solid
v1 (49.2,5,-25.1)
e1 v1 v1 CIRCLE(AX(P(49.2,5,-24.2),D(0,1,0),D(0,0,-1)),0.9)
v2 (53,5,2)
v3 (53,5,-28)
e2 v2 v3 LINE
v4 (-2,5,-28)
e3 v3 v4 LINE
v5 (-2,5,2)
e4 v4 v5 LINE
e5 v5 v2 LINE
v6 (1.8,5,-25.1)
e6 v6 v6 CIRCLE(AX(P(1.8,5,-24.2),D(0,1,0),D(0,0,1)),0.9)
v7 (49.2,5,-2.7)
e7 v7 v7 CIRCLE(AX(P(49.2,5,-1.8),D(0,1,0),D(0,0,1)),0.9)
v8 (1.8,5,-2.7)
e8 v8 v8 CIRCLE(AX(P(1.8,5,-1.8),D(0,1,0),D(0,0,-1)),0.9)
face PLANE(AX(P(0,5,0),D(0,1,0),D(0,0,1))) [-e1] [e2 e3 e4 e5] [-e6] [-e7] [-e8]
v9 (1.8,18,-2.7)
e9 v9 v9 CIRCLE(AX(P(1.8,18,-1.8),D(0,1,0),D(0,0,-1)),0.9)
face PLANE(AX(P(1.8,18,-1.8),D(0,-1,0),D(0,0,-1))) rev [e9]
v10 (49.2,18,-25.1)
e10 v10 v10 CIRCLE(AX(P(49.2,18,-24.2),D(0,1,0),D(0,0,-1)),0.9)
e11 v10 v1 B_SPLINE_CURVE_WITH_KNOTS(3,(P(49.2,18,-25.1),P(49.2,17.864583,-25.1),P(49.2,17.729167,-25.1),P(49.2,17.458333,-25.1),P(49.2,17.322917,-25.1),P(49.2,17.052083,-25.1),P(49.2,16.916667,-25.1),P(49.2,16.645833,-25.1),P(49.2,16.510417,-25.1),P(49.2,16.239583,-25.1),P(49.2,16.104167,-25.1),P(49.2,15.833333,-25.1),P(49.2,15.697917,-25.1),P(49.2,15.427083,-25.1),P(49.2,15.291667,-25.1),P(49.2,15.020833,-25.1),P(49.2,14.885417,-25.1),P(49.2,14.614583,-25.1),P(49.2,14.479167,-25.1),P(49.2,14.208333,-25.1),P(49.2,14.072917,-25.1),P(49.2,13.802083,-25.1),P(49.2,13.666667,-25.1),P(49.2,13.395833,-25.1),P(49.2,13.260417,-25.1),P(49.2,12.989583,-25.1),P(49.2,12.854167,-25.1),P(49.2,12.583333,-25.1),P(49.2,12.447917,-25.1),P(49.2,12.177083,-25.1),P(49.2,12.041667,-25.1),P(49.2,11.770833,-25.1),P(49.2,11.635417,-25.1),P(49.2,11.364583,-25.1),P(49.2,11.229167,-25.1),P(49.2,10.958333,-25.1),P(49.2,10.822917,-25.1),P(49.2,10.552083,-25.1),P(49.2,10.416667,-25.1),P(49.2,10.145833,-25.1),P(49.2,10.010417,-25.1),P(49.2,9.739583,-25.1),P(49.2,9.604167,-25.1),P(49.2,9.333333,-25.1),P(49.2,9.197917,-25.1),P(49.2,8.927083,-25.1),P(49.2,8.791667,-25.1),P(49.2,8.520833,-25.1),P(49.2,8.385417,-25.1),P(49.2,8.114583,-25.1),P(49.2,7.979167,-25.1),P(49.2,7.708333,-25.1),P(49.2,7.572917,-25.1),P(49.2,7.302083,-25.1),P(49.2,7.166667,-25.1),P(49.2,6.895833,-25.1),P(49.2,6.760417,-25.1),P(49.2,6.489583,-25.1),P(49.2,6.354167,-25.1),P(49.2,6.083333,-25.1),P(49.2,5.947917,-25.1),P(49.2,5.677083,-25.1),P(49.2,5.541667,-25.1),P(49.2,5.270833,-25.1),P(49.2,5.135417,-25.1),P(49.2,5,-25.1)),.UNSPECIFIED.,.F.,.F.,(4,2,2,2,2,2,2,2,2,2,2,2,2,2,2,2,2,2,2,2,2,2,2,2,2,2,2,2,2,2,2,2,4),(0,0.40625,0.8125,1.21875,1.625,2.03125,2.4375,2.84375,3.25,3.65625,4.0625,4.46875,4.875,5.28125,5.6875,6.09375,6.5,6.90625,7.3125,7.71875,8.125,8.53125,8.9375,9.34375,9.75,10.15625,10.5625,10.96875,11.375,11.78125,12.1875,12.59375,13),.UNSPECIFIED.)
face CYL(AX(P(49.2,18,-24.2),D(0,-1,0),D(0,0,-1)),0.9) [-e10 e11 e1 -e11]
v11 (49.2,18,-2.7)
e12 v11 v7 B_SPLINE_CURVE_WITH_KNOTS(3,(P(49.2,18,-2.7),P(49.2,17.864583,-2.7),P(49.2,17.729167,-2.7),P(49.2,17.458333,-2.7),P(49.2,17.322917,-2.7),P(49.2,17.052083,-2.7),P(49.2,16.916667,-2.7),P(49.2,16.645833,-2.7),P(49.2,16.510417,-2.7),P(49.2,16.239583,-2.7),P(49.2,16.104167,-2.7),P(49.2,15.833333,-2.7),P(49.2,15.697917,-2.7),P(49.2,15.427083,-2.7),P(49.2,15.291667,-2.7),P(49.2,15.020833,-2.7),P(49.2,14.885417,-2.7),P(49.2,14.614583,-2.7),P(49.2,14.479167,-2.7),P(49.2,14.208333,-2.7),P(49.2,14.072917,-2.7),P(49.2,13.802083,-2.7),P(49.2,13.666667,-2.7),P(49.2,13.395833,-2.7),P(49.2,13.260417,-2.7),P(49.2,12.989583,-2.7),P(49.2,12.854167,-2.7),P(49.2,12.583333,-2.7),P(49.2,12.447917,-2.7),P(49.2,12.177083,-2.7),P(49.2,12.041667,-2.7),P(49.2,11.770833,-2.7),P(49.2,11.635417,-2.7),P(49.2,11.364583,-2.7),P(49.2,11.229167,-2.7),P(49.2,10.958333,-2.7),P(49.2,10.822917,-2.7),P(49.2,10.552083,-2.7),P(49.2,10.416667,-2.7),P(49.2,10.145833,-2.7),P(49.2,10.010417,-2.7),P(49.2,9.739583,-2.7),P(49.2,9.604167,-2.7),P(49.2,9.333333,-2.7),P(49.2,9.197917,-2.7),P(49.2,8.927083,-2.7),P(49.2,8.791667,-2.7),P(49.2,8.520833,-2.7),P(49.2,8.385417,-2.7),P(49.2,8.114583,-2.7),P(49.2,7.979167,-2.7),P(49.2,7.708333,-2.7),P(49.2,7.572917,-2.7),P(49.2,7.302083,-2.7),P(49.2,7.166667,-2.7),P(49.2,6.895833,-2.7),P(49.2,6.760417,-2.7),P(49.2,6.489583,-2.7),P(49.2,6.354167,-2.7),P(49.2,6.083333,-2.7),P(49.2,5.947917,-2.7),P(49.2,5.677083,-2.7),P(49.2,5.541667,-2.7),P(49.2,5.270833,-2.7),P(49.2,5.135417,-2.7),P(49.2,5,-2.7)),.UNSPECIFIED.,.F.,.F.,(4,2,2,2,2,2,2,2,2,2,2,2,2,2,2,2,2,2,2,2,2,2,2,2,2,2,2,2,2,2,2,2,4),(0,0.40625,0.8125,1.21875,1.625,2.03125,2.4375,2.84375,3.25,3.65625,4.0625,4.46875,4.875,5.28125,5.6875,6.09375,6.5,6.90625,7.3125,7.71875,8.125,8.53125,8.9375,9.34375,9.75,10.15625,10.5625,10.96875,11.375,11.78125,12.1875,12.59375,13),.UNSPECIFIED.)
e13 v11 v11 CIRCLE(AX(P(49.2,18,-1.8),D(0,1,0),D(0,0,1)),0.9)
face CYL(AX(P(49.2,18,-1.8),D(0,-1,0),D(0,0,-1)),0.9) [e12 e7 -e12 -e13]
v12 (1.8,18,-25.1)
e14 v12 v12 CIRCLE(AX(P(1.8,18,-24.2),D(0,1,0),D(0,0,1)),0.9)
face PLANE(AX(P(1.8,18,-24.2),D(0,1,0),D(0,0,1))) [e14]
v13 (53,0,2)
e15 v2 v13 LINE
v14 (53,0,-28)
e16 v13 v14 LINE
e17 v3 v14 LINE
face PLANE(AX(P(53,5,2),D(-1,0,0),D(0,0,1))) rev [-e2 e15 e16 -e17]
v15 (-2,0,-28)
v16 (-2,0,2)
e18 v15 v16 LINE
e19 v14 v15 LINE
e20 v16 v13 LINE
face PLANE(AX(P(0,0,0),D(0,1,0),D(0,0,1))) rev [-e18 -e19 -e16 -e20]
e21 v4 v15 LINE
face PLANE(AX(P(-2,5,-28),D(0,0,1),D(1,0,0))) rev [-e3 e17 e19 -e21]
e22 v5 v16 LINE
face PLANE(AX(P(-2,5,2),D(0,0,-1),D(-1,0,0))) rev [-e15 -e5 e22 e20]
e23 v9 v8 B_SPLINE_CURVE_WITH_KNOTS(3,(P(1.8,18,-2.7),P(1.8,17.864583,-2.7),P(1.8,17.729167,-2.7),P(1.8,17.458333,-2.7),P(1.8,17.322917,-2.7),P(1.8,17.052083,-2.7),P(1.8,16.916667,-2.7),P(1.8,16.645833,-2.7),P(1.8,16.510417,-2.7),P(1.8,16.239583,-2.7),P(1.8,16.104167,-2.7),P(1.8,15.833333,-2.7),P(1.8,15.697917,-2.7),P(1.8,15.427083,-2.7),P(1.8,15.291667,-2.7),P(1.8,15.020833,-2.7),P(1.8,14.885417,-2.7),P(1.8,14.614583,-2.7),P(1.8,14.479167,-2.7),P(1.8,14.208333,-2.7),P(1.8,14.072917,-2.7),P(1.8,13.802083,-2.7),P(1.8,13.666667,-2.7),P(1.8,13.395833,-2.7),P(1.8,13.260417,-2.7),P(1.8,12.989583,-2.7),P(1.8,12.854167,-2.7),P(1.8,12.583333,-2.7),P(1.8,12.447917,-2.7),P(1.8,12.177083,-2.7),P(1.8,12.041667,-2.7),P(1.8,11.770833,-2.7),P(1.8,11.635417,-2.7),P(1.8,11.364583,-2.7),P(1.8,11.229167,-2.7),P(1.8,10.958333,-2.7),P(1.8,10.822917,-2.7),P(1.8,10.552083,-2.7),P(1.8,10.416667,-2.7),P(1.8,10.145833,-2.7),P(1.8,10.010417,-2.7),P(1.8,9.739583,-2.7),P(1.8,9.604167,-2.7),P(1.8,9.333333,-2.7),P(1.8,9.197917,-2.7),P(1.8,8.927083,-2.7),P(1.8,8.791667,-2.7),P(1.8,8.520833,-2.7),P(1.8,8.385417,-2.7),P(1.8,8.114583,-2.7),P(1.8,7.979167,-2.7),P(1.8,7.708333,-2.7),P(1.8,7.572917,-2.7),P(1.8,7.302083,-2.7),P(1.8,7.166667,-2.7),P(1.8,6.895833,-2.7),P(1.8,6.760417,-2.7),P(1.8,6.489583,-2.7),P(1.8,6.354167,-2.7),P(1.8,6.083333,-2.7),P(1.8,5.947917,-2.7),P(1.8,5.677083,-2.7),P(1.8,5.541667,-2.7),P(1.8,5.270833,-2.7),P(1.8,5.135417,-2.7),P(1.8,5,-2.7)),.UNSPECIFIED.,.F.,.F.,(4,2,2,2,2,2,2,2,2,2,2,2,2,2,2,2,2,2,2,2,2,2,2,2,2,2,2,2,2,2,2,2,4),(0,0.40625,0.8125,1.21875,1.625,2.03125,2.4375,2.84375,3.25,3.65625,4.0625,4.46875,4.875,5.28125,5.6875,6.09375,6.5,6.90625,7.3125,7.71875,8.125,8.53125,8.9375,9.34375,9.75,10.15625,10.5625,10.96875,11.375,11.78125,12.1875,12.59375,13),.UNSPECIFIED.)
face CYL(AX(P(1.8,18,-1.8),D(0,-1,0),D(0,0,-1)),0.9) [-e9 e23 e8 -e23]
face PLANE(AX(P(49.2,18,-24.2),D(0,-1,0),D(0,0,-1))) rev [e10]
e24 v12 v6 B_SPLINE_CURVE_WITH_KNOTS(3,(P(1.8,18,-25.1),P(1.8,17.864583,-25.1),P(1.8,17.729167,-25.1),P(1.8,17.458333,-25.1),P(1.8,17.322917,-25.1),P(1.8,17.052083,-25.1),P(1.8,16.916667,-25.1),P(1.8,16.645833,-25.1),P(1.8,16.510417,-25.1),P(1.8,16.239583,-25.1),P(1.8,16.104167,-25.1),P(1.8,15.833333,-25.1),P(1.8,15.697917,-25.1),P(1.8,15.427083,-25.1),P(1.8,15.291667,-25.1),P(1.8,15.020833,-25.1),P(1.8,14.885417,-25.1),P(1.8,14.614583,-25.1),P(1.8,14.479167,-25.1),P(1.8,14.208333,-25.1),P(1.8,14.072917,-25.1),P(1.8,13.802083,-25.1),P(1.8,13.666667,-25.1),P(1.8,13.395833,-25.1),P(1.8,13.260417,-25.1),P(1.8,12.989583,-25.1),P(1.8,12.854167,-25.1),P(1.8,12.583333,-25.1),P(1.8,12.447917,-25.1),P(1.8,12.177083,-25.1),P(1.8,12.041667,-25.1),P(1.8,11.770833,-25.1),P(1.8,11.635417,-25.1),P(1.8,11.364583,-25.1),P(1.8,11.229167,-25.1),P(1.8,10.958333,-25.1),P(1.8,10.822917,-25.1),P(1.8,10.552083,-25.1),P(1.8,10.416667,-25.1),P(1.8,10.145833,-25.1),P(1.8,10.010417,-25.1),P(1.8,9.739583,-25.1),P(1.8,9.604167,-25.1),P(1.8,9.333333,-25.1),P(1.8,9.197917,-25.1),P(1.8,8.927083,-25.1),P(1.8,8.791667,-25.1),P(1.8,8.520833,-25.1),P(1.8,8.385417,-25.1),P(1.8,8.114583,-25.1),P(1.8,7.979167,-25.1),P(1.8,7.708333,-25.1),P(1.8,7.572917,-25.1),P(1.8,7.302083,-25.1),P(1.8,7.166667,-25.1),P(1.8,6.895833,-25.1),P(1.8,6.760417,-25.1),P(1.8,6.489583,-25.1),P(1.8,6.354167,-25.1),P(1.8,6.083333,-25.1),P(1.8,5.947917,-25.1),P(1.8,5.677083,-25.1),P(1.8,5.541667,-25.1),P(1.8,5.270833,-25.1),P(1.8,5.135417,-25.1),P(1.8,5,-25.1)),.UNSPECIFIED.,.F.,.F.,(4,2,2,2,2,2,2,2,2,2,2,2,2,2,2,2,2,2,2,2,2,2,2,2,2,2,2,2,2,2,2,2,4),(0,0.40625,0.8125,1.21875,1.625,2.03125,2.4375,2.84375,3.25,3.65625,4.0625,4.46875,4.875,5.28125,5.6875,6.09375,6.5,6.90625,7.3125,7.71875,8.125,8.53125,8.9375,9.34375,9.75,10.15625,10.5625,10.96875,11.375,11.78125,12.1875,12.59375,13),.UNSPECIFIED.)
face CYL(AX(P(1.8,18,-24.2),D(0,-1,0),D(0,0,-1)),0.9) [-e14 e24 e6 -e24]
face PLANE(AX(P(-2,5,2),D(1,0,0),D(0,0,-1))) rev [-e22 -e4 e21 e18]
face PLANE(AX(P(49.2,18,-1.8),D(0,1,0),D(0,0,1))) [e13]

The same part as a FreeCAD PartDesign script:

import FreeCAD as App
import Part
import Sketcher

V = App.Vector


def add_polygon(sketch, points):
    """Adds a closed chain of lines whose ends are joined by coincident constraints."""
    first, n = sketch.GeometryCount, len(points)
    for a, b in zip(points, points[1:] + points[:1]):
        sketch.addGeometry(Part.LineSegment(App.Vector(*a, 0), App.Vector(*b, 0)), False)
    for i in range(n):
        sketch.addConstraint(Sketcher.Constraint("Coincident", first + i, 2, first + (i + 1) % n, 1))

doc = App.newDocument("Part")
params = doc.addObject("Spreadsheet::Sheet", "Params")
for row, (alias, value) in enumerate([
    ("sketch1_width", "55 mm"),
    ("sketch1_height", "30 mm"),
    ("pad1_length", "5 mm"),
    ("sketch2_diameter", "1.8 mm"),
    ("pad2_length", "13 mm"),
], start=1):
    params.set(f"A{row}", alias)
    params.set(f"B{row}", "=" + value)
    params.setAlias(f"B{row}", alias)

body = doc.addObject("PartDesign::Body", "Body")

# Sketch on XZ plane
sketch1 = doc.addObject("Sketcher::SketchObject", "Sketch")
body.addObject(sketch1)
sketch1.AttachmentSupport = (doc.XZ_Plane, [""])
sketch1.MapMode = "FlatFace"
add_polygon(sketch1, [(-2, -28), (-2, 2), (53, 2), (53, -28)])  # lines 0-3
sketch1.addConstraint([
    Sketcher.Constraint("Vertical", 0),
    Sketcher.Constraint("Horizontal", 1),
    Sketcher.Constraint("Vertical", 2),
    Sketcher.Constraint("Horizontal", 3),
    Sketcher.Constraint("DistanceX", 1, 1, 1, 2, 55.0),
    Sketcher.Constraint("DistanceY", 0, 1, 0, 2, 30.0),
    Sketcher.Constraint("DistanceX", 0, 2, -1, 1, 2.0),
    Sketcher.Constraint("DistanceY", -1, 1, 0, 2, 2.0),
])
sketch1.setExpression("Constraints[8]", "Params.sketch1_width")
sketch1.setExpression("Constraints[9]", "Params.sketch1_height")
pad1 = doc.addObject("PartDesign::Pad", "Pad")
body.addObject(pad1)
pad1.Profile = sketch1
pad1.setExpression("Length", "Params.pad1_length")
pad1.Reversed = True

# Sketch on XZ plane
sketch2 = doc.addObject("Sketcher::SketchObject", "Sketch001")
body.addObject(sketch2)
sketch2.AttachmentSupport = (doc.XZ_Plane, [""])
sketch2.MapMode = "FlatFace"
sketch2.AttachmentOffset = App.Placement(V(0, 0, -5), App.Rotation())
sketch2.addGeometry([
    Part.Circle(V(1.8, -24.2, 0), V(0, 0, 1), 0.9),
    Part.Circle(V(49.2, -24.2, 0), V(0, 0, 1), 0.9),
    Part.Circle(V(49.2, -1.8, 0), V(0, 0, 1), 0.9),
    Part.Circle(V(1.8, -1.8, 0), V(0, 0, 1), 0.9),
], False)
sketch2.addConstraint([
    Sketcher.Constraint("Equal", 0, 1),
    Sketcher.Constraint("Equal", 1, 2),
    Sketcher.Constraint("Equal", 2, 3),
    Sketcher.Constraint("Horizontal", 0, 3, 1, 3),
    Sketcher.Constraint("Horizontal", 2, 3, 3, 3),
    Sketcher.Constraint("Vertical", 1, 3, 2, 3),
    Sketcher.Constraint("Vertical", 0, 3, 3, 3),
    Sketcher.Constraint("Diameter", 0, 1.8),
    Sketcher.Constraint("DistanceX", -1, 1, 0, 3, 1.8),
    Sketcher.Constraint("DistanceY", 0, 3, -1, 1, 24.2),
    Sketcher.Constraint("DistanceX", -1, 1, 1, 3, 49.2),
    Sketcher.Constraint("DistanceY", 2, 3, -1, 1, 1.8),
])
sketch2.setExpression("Constraints[7]", "Params.sketch2_diameter")
pad2 = doc.addObject("PartDesign::Pad", "Pad001")
body.addObject(pad2)
pad2.Profile = sketch2
pad2.setExpression("Length", "Params.pad2_length")
pad2.Reversed = True

doc.recompute()
